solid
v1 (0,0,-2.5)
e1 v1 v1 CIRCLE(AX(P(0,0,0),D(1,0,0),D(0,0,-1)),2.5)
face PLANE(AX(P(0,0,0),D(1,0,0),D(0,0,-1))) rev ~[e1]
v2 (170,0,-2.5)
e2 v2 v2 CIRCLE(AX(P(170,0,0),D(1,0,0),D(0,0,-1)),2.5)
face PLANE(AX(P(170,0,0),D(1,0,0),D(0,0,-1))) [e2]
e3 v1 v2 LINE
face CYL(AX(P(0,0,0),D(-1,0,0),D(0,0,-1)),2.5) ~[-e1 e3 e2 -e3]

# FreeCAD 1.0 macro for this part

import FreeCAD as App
import Part
import Sketcher

doc = App.newDocument("Part")
body = doc.addObject("PartDesign::Body", "Body")

# Sketch on YZ plane
sketch1 = body.newObject("Sketcher::SketchObject", "Sketch")
sketch1.AttachmentSupport = (doc.getObject("YZ_Plane"), [""])
sketch1.MapMode = "FlatFace"
sketch1.addGeometry(Part.Circle(App.Vector(0, 0, 0), App.Vector(0, 0, 1), 2.5), False)
sketch1.addConstraint([
    Sketcher.Constraint("Coincident", 0, 3, -1, 1),
    Sketcher.Constraint("Diameter", 0, 5.0),
])
pad1 = body.newObject("PartDesign::Pad", "Pad")
pad1.Profile = sketch1
pad1.Length = 170

doc.recompute()
